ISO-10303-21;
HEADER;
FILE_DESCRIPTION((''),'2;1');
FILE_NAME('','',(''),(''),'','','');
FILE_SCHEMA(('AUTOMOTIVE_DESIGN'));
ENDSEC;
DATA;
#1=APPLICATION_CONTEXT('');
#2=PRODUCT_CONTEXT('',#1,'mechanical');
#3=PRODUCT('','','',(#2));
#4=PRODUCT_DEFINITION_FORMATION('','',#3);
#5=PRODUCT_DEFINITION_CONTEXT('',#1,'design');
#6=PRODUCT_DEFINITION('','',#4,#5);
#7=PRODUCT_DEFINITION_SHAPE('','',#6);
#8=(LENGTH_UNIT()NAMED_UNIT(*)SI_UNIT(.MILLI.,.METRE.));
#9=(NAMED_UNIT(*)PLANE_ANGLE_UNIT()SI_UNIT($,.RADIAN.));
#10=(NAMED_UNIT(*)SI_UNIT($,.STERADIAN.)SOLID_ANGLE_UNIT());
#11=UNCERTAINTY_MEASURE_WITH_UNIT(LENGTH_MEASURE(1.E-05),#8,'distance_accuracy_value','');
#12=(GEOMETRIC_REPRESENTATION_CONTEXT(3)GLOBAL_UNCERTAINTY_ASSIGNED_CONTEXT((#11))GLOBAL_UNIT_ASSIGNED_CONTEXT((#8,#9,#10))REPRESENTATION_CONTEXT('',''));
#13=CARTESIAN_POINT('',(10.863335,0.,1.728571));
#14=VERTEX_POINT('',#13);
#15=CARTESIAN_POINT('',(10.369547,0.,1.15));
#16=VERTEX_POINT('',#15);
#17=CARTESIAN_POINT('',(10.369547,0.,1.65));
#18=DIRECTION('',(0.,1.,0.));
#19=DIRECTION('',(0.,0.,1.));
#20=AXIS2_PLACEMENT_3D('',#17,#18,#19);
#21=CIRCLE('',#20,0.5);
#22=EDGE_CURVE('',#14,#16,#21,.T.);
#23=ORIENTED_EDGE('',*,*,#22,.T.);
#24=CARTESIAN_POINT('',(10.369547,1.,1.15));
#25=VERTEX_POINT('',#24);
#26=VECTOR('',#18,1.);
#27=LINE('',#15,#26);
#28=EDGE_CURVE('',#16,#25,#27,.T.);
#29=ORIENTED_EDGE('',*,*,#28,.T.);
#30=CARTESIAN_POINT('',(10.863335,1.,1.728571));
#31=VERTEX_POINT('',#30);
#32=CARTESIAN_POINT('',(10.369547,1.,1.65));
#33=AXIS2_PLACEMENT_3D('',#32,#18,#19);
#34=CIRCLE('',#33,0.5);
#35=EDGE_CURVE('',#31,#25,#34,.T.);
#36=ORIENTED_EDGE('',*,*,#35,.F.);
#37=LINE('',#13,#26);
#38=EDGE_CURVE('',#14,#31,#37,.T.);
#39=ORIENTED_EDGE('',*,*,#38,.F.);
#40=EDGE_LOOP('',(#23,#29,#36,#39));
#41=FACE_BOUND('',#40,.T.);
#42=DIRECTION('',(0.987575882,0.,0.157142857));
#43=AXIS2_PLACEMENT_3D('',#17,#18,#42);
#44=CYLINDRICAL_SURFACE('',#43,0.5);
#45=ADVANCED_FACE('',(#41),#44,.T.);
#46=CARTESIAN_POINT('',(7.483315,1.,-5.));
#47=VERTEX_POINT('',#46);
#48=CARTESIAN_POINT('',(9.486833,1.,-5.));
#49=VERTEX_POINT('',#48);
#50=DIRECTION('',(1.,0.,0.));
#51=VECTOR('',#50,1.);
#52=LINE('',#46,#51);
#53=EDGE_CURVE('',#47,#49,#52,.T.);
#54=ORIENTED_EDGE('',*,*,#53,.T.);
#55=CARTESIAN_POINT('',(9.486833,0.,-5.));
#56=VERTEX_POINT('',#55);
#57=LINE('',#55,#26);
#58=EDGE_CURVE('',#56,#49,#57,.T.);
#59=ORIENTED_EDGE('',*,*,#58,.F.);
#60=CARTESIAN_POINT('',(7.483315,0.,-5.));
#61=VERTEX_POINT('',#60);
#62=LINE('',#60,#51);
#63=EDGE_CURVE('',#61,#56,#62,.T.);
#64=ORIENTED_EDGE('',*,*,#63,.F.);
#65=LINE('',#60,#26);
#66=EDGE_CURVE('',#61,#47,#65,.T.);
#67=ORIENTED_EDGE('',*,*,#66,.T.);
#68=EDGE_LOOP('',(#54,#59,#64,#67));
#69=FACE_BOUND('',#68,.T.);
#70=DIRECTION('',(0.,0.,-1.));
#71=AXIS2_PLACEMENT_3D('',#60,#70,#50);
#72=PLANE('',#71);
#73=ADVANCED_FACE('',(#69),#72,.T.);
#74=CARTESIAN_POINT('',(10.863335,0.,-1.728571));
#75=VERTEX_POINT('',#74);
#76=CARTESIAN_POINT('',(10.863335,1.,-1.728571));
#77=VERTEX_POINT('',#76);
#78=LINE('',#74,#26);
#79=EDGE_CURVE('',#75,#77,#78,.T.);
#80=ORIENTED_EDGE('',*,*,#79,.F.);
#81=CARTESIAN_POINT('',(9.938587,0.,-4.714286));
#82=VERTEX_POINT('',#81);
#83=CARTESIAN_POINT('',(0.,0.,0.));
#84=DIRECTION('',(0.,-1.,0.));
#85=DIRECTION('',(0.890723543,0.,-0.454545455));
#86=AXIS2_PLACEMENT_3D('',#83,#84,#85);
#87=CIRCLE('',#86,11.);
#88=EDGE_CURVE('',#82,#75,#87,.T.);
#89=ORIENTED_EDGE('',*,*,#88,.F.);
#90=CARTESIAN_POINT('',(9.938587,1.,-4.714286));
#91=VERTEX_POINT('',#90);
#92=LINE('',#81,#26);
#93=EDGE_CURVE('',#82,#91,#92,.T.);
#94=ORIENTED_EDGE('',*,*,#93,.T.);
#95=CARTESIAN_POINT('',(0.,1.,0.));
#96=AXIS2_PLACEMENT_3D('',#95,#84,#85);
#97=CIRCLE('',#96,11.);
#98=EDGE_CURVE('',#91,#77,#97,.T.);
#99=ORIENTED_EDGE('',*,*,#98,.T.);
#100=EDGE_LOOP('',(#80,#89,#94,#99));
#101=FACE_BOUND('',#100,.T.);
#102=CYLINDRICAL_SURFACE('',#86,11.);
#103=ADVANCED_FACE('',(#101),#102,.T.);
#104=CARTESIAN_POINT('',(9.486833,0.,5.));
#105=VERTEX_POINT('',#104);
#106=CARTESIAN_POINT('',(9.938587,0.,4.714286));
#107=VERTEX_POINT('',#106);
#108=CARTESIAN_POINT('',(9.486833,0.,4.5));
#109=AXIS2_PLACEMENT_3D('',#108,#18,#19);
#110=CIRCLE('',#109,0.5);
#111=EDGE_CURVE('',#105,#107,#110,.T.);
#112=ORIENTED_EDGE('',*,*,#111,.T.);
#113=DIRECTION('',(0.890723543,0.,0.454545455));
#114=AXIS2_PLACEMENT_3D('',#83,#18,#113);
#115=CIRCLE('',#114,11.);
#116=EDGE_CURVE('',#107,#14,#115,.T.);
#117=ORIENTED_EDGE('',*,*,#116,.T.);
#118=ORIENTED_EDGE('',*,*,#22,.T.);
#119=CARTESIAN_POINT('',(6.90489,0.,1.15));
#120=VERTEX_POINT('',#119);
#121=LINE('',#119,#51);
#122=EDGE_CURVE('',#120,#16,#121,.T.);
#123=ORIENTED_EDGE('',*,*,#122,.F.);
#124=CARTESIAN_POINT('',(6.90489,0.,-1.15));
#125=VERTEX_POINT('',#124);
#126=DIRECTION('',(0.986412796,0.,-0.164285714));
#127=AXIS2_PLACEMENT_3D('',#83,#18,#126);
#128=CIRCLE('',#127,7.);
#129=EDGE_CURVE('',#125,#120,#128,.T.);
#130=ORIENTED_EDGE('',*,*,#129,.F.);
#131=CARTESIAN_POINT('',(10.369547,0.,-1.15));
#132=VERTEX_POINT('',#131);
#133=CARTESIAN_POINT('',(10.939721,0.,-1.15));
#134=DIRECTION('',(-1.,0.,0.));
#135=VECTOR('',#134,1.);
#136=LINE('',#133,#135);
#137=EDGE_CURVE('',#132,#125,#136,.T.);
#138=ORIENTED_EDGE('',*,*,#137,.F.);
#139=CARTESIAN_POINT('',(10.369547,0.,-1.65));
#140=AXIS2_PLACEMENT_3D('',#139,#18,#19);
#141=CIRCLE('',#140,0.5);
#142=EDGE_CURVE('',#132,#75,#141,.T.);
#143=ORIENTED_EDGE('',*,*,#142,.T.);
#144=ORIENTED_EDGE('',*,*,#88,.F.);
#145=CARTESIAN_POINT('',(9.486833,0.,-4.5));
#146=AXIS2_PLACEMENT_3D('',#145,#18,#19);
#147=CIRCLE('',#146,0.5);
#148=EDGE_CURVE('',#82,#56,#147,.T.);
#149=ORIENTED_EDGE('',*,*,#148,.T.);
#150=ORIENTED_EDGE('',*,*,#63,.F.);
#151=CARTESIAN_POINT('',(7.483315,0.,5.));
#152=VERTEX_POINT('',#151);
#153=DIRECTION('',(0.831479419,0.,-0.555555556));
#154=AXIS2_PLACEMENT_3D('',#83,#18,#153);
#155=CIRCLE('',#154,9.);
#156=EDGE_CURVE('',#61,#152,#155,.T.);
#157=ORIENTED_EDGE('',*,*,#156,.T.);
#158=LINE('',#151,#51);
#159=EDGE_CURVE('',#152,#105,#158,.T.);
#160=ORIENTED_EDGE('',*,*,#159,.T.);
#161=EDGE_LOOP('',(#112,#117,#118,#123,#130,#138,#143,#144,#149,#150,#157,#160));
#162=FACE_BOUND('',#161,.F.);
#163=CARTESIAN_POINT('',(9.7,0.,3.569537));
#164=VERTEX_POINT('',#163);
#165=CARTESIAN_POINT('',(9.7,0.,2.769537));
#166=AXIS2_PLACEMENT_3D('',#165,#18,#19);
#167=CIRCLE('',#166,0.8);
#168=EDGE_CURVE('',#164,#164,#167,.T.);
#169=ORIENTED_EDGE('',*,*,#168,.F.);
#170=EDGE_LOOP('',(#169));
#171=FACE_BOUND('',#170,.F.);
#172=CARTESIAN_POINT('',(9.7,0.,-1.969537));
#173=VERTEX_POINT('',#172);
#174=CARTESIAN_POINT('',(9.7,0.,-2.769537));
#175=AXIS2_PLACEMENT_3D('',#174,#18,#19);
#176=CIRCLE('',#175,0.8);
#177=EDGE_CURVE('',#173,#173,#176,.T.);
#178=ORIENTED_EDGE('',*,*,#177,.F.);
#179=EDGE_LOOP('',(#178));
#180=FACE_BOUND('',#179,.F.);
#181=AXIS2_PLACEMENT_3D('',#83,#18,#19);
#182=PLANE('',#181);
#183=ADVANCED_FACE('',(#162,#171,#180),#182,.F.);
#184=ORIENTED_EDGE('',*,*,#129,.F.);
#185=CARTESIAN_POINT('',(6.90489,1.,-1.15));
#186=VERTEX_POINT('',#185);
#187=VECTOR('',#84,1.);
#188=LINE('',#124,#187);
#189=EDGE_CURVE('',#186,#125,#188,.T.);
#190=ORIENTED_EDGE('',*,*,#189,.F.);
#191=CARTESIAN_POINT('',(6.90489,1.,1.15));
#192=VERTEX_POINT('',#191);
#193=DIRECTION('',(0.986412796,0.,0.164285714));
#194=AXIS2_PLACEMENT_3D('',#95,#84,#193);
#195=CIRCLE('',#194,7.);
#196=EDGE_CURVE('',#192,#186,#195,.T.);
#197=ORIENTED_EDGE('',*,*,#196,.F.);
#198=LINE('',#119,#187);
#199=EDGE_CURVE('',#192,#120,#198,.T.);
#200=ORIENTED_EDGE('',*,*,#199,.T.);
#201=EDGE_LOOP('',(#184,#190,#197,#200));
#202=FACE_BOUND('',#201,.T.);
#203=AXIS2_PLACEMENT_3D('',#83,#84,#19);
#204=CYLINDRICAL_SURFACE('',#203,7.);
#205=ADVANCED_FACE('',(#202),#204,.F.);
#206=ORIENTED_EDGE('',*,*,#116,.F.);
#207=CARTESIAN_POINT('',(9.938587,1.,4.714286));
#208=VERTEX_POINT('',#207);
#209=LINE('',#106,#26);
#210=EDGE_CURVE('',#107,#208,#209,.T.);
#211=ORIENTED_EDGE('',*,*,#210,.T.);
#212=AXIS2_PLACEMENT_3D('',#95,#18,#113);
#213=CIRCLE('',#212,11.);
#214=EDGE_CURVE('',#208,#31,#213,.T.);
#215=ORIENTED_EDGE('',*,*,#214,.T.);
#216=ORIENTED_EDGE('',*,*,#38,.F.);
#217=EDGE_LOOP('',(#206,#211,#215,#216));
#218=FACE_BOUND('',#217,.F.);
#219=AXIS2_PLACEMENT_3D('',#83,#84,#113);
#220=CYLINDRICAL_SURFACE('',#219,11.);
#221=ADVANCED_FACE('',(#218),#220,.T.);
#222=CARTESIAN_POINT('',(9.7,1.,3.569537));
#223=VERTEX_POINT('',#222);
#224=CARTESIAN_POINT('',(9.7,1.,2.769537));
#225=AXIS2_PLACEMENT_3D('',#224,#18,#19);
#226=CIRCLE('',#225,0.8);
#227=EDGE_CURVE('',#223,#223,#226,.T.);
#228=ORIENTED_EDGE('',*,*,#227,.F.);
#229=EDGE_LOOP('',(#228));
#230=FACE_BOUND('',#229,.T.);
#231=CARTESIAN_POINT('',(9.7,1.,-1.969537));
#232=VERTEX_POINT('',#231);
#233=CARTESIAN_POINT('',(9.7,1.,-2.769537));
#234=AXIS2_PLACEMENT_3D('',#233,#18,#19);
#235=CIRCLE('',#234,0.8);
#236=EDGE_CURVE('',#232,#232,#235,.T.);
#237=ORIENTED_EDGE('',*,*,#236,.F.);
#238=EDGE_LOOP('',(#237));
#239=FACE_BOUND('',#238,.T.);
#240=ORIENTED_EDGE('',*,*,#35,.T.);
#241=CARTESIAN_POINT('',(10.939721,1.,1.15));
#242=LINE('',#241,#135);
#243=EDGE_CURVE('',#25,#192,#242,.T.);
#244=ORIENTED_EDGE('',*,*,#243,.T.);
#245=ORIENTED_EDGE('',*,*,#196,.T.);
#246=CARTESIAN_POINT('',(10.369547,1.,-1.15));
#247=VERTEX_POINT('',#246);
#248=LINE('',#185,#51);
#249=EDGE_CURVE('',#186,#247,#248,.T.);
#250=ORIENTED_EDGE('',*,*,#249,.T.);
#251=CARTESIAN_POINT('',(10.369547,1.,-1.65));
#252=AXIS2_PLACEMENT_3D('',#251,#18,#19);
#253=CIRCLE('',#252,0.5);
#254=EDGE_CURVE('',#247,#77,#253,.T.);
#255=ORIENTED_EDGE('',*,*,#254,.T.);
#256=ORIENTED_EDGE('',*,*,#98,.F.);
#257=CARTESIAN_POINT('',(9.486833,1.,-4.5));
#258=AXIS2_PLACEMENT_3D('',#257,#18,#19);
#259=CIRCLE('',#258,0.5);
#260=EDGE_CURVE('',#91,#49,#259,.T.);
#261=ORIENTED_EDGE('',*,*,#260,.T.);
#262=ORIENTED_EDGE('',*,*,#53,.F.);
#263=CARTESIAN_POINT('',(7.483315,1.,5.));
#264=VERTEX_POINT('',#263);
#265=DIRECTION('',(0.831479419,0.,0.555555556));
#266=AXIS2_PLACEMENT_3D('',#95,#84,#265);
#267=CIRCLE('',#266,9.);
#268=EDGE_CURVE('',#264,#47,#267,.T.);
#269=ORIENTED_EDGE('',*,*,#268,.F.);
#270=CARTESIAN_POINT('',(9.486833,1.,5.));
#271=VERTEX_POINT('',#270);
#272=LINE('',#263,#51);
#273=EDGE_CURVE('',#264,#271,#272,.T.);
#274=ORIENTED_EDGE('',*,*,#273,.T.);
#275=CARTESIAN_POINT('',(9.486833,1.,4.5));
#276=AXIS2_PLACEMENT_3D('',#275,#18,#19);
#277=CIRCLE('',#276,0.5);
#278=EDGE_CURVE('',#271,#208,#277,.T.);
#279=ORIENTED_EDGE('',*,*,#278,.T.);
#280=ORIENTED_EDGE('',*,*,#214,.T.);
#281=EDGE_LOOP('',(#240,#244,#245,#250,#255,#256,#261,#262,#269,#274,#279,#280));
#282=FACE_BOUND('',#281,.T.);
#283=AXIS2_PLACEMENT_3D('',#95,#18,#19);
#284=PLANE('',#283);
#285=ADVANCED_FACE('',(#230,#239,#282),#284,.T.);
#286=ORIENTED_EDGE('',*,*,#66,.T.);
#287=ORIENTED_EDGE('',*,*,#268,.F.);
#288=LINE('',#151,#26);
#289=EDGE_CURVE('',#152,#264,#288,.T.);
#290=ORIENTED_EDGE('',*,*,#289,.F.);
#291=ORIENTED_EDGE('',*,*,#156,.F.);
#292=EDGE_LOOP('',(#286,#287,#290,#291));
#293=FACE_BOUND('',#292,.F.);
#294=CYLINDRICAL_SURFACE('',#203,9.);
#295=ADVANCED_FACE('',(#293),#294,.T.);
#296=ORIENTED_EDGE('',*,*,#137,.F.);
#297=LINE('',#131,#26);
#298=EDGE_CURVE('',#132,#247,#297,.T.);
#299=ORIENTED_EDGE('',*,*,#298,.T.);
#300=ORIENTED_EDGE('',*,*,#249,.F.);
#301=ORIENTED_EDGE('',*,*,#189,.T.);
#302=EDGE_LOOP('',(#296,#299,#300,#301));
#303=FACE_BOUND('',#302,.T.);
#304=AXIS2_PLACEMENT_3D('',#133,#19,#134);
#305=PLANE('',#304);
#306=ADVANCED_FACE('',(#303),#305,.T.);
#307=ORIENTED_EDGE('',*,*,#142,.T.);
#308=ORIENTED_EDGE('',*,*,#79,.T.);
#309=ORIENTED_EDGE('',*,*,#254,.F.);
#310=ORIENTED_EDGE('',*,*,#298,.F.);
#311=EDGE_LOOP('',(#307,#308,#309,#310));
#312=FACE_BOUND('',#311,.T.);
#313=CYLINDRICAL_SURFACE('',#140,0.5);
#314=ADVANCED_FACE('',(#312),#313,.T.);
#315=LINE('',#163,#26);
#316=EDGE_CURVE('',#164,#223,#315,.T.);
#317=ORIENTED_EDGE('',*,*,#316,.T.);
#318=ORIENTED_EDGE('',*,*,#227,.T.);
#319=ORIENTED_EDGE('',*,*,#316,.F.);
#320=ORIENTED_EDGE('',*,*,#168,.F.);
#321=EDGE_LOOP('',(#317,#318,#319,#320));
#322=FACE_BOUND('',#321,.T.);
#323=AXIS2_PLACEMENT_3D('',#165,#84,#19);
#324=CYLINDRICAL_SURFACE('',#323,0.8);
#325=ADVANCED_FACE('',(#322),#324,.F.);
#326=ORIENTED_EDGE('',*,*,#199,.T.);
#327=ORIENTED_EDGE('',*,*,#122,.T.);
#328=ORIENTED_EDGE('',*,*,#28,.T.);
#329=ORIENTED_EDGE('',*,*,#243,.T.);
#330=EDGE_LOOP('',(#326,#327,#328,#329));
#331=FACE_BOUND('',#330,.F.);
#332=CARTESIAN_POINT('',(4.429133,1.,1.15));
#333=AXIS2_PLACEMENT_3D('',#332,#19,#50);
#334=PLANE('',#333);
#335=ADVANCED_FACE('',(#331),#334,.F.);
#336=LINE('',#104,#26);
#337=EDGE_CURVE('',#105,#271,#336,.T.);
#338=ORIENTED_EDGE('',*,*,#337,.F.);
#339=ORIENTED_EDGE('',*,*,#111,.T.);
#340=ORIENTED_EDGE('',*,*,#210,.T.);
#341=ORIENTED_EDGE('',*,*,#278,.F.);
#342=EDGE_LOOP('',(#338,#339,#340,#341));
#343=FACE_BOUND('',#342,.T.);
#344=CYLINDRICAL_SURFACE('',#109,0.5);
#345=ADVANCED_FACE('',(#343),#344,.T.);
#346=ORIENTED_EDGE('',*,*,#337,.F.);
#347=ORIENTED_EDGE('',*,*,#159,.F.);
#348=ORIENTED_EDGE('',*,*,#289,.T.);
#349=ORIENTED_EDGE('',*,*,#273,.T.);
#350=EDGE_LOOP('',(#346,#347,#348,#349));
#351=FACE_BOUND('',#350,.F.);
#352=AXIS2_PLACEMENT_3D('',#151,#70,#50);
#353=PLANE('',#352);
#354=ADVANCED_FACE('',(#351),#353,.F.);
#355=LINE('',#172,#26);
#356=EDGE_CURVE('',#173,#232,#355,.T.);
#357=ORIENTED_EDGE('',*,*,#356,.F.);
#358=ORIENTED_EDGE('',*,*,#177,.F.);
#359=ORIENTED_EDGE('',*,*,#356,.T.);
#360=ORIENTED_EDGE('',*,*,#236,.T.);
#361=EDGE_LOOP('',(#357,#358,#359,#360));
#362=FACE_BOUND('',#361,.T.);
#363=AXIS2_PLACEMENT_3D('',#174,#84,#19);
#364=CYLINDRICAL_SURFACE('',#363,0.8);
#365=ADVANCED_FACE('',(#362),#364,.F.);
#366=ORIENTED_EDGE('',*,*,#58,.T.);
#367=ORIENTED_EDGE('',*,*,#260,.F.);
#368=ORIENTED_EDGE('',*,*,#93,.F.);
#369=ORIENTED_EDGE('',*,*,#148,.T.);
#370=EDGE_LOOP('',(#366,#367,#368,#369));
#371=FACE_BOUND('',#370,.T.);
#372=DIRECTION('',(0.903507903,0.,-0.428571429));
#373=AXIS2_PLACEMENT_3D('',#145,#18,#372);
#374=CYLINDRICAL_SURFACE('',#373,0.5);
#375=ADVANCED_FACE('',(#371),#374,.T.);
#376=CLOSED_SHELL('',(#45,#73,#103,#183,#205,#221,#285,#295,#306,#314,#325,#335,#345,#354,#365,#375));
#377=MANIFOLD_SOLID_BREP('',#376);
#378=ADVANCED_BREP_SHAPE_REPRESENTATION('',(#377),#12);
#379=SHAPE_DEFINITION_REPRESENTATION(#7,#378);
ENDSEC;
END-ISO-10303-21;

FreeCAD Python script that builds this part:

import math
import FreeCAD as App
import Part
import Sketcher

V = App.Vector


def edges_at(feature, points):
    """Names of the edges that pass closest to the given points."""
    edges = feature.Shape.Edges
    near = lambda p: min(range(len(edges)), key=lambda i: edges[i].distToShape(Part.Vertex(*p))[0])
    return sorted({f"Edge{near(p) + 1}" for p in points})

doc = App.newDocument("Part")
body = doc.addObject("PartDesign::Body", "Body")

sketch1 = body.newObject("Sketcher::SketchObject", "Sketch")
sketch1.AttachmentSupport = (doc.getObject("XZ_Plane"), [""])
sketch1.MapMode = "FlatFace"
sketch1.addGeometry([
    Part.Circle(V(0, 0, 0), V(0, 0, 1), 9),
    Part.Circle(V(0, 0, 0), V(0, 0, 1), 7),
], False)
sketch1.addConstraint([
    Sketcher.Constraint("Coincident", 0, 3, -1, 1),
    Sketcher.Constraint("Coincident", 1, 3, -1, 1),
    Sketcher.Constraint("Diameter", 0, 18.0),
    Sketcher.Constraint("Diameter", 1, 14.0),
])
pad1 = body.newObject("PartDesign::Pad", "Pad")
pad1.Profile = sketch1
pad1.Length = 1
pad1.Reversed = True

sketch2 = body.newObject("Sketcher::SketchObject", "Sketch001")
sketch2.AttachmentSupport = (doc.getObject("XZ_Plane"), [""])
sketch2.MapMode = "FlatFace"
sketch2.addGeometry([
    Part.LineSegment(V(8.926225, -1.15, 0), V(10.939721, -1.15, 0)),
    Part.ArcOfCircle(Part.Circle(V(0, 0, 0), V(0, 0, 1), 11), math.radians(-27.035692), math.radians(-6.000979)),
    Part.LineSegment(V(9.797959, -5, 0), V(7.483315, -5, 0)),
    Part.ArcOfCircle(Part.Circle(V(0, 0, 0), V(0, 0, 1), 9), math.radians(-33.748989), math.radians(-7.341197)),
    Part.Circle(V(9.7, -2.769537, 0), V(0, 0, 1), 0.8),
    Part.LineSegment(V(10.939721, 1.15, 0), V(8.926225, 1.15, 0)),
    Part.ArcOfCircle(Part.Circle(V(0, 0, 0), V(0, 0, 1), 9), math.radians(7.341197), math.radians(33.748989)),
    Part.LineSegment(V(7.483315, 5, 0), V(9.797959, 5, 0)),
    Part.ArcOfCircle(Part.Circle(V(0, 0, 0), V(0, 0, 1), 11), math.radians(6.000979), math.radians(27.035692)),
    Part.Circle(V(9.7, 2.769537, 0), V(0, 0, 1), 0.8),
], False)
sketch2.addConstraint([
    Sketcher.Constraint("Coincident", 0, 2, 1, 2),
    Sketcher.Constraint("Coincident", 1, 1, 2, 1),
    Sketcher.Constraint("Coincident", 2, 2, 3, 1),
    Sketcher.Constraint("Coincident", 3, 2, 0, 1),
    Sketcher.Constraint("Coincident", 5, 2, 6, 1),
    Sketcher.Constraint("Coincident", 6, 2, 7, 1),
    Sketcher.Constraint("Coincident", 7, 2, 8, 2),
    Sketcher.Constraint("Coincident", 8, 1, 5, 1),
    Sketcher.Constraint("Horizontal", 0),
    Sketcher.Constraint("Horizontal", 2),
    Sketcher.Constraint("Horizontal", 5),
    Sketcher.Constraint("Horizontal", 7),
    Sketcher.Constraint("Coincident", 1, 3, -1, 1),
    Sketcher.Constraint("Coincident", 3, 3, -1, 1),
    Sketcher.Constraint("Coincident", 6, 3, -1, 1),
    Sketcher.Constraint("Coincident", 8, 3, -1, 1),
    Sketcher.Constraint("Equal", 3, 6),
    Sketcher.Constraint("Equal", 1, 8),
    Sketcher.Constraint("Equal", 4, 9),
    Sketcher.Constraint("Symmetric", 4, 3, 9, 3, -1),
    Sketcher.Constraint("Vertical", 3, 2, 5, 2),
    Sketcher.Constraint("Vertical", 2, 2, 6, 2),
    Sketcher.Constraint("Radius", 1, 11.0),
    Sketcher.Constraint("Radius", 3, 9.0),
    Sketcher.Constraint("Diameter", 4, 1.6),
    Sketcher.Constraint("DistanceY", 1, 1, -1, 1, 5.0),
    Sketcher.Constraint("DistanceX", -1, 1, 4, 3, 9.7),
    Sketcher.Constraint("DistanceY", 3, 2, 5, 2, 2.3),
    Sketcher.Constraint("DistanceY", 4, 3, -1, 1, 2.769537),
])
pad2 = body.newObject("PartDesign::Pad", "Pad001")
pad2.Profile = sketch2
pad2.Length = 1
pad2.Reversed = True

sketch3 = body.newObject("Sketcher::SketchObject", "Sketch002")
sketch3.AttachmentSupport = (doc.getObject("XZ_Plane"), [""])
sketch3.MapMode = "FlatFace"
sketch3.AttachmentOffset = App.Placement(V(0, 0, -1), App.Rotation())
sketch3.addGeometry([
    Part.LineSegment(V(4.429133, -1.15, 0), V(4.429133, 1.15, 0)),
    Part.LineSegment(V(4.429133, 1.15, 0), V(10.939721, 1.15, 0)),
    Part.LineSegment(V(10.939721, 1.15, 0), V(10.939721, -1.15, 0)),
    Part.LineSegment(V(10.939721, -1.15, 0), V(4.429133, -1.15, 0)),
], False)
sketch3.addConstraint([
    Sketcher.Constraint("Coincident", 0, 2, 1, 1),
    Sketcher.Constraint("Coincident", 1, 2, 2, 1),
    Sketcher.Constraint("Coincident", 2, 2, 3, 1),
    Sketcher.Constraint("Coincident", 3, 2, 0, 1),
    Sketcher.Constraint("Vertical", 0),
    Sketcher.Constraint("Horizontal", 1),
    Sketcher.Constraint("Vertical", 2),
    Sketcher.Constraint("Horizontal", 3),
    Sketcher.Constraint("DistanceY", 0, 1, 0, 2, 2.3),
    Sketcher.Constraint("DistanceY", -1, 1, 0, 2, 1.15),
    Sketcher.Constraint("DistanceX", 1, 1, 1, 2, 6.510589),
    Sketcher.Constraint("DistanceX", -1, 1, 1, 2, 10.939721),
])
pocket1 = body.newObject("PartDesign::Pocket", "Pocket")
pocket1.Profile = sketch3
pocket1.Type = "ThroughAll"
pocket1.Reversed = True
doc.recompute()

fillet = body.newObject("PartDesign::Fillet", "Fillet")
fillet.Base = (pocket1, edges_at(pocket1, [
    (10.94, 0.5, -1.15),
    (9.798, 0.5, -5),
    (9.798, 0.5, 5),
    (10.94, 0.5, 1.15),
]))
fillet.Radius = 0.5

doc.recompute()
